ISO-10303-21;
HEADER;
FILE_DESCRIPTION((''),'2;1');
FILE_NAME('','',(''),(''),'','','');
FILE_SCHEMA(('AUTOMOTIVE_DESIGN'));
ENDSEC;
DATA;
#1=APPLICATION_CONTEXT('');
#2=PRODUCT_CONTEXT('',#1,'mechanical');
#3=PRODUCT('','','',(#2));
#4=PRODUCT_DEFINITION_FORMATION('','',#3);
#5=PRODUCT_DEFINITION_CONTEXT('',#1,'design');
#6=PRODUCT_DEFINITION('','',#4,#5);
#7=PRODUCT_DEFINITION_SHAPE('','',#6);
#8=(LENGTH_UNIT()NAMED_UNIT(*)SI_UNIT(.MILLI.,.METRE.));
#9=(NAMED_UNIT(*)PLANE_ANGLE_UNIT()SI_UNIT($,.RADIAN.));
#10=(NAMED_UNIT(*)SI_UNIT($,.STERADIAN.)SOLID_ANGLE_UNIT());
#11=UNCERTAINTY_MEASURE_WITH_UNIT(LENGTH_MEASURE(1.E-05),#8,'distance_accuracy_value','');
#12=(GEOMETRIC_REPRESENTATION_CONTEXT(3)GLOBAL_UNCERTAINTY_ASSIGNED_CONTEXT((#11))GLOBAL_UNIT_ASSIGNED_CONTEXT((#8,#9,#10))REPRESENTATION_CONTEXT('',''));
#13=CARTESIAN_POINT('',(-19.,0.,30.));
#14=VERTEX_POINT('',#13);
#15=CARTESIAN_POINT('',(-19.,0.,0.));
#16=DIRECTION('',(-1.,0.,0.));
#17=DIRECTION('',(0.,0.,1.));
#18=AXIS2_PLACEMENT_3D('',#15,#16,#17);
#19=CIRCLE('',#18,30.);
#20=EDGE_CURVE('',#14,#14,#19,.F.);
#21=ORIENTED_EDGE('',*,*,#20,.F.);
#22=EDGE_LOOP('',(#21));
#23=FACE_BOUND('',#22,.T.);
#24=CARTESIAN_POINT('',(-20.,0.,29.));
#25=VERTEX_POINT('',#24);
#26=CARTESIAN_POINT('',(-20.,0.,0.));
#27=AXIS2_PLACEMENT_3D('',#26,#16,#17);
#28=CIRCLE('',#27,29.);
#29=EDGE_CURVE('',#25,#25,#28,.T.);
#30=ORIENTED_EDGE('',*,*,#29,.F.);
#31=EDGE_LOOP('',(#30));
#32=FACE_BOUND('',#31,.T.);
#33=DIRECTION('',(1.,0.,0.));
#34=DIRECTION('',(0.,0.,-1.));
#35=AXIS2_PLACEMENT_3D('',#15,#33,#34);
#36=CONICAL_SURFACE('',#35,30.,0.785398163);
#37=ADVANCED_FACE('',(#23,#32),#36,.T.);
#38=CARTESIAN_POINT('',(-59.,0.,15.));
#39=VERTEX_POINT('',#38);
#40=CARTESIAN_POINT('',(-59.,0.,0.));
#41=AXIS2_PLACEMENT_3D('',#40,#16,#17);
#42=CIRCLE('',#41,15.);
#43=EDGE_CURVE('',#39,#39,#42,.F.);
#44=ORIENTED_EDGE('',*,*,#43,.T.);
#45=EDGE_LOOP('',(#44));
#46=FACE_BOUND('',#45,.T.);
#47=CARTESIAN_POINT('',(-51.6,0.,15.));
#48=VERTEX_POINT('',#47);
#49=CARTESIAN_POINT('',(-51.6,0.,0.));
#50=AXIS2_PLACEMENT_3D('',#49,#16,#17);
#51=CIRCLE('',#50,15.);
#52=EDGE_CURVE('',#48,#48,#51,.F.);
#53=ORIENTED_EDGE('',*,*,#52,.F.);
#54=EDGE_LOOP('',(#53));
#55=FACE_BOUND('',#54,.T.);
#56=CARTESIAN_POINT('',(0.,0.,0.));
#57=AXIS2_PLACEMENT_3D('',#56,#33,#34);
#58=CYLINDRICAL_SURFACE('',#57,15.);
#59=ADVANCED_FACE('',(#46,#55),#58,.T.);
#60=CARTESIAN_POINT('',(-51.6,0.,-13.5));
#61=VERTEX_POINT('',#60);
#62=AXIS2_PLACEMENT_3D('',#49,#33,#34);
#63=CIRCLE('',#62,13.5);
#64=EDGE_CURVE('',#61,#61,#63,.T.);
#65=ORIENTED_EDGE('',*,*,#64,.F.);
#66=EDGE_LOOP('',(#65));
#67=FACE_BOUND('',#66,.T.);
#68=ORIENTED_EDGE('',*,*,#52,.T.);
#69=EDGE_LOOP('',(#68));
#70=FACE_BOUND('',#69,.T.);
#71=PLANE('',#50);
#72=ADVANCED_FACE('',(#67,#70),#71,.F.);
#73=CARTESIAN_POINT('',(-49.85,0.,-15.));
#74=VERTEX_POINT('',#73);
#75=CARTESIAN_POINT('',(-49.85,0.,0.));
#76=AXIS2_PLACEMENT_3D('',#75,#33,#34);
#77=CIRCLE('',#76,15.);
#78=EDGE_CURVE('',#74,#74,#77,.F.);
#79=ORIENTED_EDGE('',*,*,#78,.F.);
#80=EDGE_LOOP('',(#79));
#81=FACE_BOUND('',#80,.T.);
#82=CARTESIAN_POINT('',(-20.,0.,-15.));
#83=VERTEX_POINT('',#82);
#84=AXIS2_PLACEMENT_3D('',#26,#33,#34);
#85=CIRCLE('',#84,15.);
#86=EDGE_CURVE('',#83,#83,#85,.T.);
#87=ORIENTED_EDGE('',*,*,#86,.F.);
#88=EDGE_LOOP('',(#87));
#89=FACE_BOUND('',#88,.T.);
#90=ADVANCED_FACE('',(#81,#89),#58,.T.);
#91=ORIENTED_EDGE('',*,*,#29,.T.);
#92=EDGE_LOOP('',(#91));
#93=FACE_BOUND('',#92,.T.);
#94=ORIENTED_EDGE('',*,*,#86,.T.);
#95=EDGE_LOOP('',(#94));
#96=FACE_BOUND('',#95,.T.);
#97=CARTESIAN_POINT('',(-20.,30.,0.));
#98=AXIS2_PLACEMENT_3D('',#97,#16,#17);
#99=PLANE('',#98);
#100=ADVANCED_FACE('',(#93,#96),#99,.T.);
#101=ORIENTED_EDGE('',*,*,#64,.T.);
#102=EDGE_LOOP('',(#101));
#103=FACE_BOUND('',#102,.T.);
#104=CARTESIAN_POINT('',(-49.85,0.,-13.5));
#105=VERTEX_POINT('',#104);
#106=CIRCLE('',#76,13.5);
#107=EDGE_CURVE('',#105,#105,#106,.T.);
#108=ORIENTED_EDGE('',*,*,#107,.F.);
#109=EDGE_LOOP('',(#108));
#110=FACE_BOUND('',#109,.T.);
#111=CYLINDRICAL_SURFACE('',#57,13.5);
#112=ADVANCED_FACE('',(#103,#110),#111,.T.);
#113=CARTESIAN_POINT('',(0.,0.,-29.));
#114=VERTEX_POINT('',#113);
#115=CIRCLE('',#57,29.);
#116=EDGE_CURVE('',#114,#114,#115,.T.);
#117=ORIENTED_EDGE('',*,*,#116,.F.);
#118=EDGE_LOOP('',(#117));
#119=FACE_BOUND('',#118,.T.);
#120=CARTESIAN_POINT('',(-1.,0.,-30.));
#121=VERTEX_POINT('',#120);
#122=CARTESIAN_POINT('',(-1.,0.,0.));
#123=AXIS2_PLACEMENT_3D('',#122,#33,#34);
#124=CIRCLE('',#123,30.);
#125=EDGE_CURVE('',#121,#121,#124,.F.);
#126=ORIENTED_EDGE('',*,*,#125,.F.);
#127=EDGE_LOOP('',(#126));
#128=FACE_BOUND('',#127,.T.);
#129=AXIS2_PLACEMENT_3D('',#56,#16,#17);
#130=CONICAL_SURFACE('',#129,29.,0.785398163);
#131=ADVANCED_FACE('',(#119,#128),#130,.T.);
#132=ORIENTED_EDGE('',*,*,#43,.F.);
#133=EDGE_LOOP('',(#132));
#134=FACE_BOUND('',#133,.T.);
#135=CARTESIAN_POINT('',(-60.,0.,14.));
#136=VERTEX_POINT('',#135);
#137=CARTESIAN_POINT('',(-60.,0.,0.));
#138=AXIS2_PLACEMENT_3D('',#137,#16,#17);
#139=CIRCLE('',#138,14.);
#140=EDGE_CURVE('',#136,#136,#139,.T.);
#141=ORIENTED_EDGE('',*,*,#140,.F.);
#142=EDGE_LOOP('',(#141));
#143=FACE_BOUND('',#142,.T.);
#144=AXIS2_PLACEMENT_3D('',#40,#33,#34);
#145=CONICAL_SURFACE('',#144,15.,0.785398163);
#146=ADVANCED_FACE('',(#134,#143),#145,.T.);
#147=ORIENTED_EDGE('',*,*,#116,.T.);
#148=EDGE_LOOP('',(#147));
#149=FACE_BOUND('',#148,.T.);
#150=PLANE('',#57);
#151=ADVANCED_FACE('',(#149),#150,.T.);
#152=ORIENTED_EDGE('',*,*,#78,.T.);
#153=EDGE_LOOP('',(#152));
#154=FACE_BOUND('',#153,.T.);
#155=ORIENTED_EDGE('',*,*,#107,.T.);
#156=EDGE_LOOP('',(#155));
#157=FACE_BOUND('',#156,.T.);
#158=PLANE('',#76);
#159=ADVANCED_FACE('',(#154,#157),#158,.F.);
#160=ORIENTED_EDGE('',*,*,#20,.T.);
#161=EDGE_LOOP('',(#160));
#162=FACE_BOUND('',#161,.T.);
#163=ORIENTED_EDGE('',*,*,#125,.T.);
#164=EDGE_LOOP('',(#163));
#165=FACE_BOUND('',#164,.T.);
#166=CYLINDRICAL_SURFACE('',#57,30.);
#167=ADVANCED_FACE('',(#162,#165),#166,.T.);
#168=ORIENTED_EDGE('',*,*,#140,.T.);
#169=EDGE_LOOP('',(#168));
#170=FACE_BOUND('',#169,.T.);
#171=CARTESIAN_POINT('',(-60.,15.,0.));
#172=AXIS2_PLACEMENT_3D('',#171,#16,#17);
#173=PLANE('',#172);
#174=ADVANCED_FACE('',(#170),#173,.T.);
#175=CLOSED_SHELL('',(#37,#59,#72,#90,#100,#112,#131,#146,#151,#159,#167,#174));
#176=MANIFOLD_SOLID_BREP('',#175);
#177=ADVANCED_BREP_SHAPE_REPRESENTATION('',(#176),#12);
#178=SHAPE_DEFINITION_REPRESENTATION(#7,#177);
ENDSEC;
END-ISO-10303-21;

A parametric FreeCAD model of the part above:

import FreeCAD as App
import Part
import Sketcher
from FreeCAD import Vector


def edges_at(feature, points):
    """Names of the edges that pass closest to the given points."""
    edges = feature.Shape.Edges
    near = lambda p: min(range(len(edges)), key=lambda i: edges[i].distToShape(Part.Vertex(*p))[0])
    return sorted({f"Edge{near(p) + 1}" for p in points})


def add_polygon(sketch, points):
    """Adds a closed chain of lines whose ends are joined by coincident constraints."""
    first, n = sketch.GeometryCount, len(points)
    for a, b in zip(points, points[1:] + points[:1]):
        sketch.addGeometry(Part.LineSegment(App.Vector(*a, 0), App.Vector(*b, 0)), False)
    for i in range(n):
        sketch.addConstraint(Sketcher.Constraint("Coincident", first + i, 2, first + (i + 1) % n, 1))

doc = App.newDocument("Part")
body = doc.addObject("PartDesign::Body", "Body")

sketch1 = body.newObject("Sketcher::SketchObject", "Sketch")
sketch1.AttachmentSupport = (doc.getObject("XY_Plane"), [""])
sketch1.MapMode = "FlatFace"
add_polygon(sketch1, [(0, 0), (0, 30), (-20, 30), (-20, 15), (-60, 15), (-60, 0)])
sketch1.addConstraint(Sketcher.Constraint("Vertical", 0))
sketch1.addConstraint(Sketcher.Constraint("Horizontal", 1))
sketch1.addConstraint(Sketcher.Constraint("Vertical", 2))
sketch1.addConstraint(Sketcher.Constraint("Horizontal", 3))
sketch1.addConstraint(Sketcher.Constraint("Vertical", 4))
sketch1.addConstraint(Sketcher.Constraint("Horizontal", 5))
sketch1.addConstraint(Sketcher.Constraint("Coincident", 5, 2, -1, 1))
sketch1.addConstraint(Sketcher.Constraint("Equal", 2, 4))
sketch1.addConstraint(Sketcher.Constraint("DistanceX", 1, 2, 1, 1, 20.0))
sketch1.addConstraint(Sketcher.Constraint("DistanceX", 3, 2, 3, 1, 40.0))
sketch1.addConstraint(Sketcher.Constraint("DistanceY", 0, 1, 0, 2, 30.0))
revolution = body.newObject("PartDesign::Revolution", "Revolution")
revolution.Profile = sketch1
revolution.ReferenceAxis = (sketch1, ["H_Axis"])
revolution.Angle = 360
doc.recompute()

chamfer = body.newObject("PartDesign::Chamfer", "Chamfer")
chamfer.Base = (revolution, edges_at(revolution, [(-60, 0, 15), (-20, 0, 30), (0, 0, 30)]))
chamfer.Size = 1

sketch2 = body.newObject("Sketcher::SketchObject", "Sketch001")
sketch2.AttachmentSupport = (doc.getObject("XY_Plane"), [""])
sketch2.MapMode = "FlatFace"
add_polygon(sketch2, [(-51.6, 17.7), (-51.6, 13.5), (-49.9, 13.5), (-49.9, 17.7)])
sketch2.addConstraint(Sketcher.Constraint("Vertical", 0))
sketch2.addConstraint(Sketcher.Constraint("Horizontal", 1))
sketch2.addConstraint(Sketcher.Constraint("Vertical", 2))
sketch2.addConstraint(Sketcher.Constraint("Horizontal", 3))
sketch2.addConstraint(Sketcher.Constraint("DistanceX", 1, 1, 1, 2, 1.75))
sketch2.addConstraint(Sketcher.Constraint("DistanceX", 0, 2, -1, 1, 51.6))
sketch2.addConstraint(Sketcher.Constraint("DistanceY", -1, 1, 0, 2, 13.5))
sketch2.addConstraint(Sketcher.Constraint("DistanceY", 0, 2, 0, 1, 4.170885))
groove = body.newObject("PartDesign::Groove", "Groove")
groove.Profile = sketch2
groove.ReferenceAxis = (sketch2, ["H_Axis"])
groove.Angle = 360

doc.recompute()
